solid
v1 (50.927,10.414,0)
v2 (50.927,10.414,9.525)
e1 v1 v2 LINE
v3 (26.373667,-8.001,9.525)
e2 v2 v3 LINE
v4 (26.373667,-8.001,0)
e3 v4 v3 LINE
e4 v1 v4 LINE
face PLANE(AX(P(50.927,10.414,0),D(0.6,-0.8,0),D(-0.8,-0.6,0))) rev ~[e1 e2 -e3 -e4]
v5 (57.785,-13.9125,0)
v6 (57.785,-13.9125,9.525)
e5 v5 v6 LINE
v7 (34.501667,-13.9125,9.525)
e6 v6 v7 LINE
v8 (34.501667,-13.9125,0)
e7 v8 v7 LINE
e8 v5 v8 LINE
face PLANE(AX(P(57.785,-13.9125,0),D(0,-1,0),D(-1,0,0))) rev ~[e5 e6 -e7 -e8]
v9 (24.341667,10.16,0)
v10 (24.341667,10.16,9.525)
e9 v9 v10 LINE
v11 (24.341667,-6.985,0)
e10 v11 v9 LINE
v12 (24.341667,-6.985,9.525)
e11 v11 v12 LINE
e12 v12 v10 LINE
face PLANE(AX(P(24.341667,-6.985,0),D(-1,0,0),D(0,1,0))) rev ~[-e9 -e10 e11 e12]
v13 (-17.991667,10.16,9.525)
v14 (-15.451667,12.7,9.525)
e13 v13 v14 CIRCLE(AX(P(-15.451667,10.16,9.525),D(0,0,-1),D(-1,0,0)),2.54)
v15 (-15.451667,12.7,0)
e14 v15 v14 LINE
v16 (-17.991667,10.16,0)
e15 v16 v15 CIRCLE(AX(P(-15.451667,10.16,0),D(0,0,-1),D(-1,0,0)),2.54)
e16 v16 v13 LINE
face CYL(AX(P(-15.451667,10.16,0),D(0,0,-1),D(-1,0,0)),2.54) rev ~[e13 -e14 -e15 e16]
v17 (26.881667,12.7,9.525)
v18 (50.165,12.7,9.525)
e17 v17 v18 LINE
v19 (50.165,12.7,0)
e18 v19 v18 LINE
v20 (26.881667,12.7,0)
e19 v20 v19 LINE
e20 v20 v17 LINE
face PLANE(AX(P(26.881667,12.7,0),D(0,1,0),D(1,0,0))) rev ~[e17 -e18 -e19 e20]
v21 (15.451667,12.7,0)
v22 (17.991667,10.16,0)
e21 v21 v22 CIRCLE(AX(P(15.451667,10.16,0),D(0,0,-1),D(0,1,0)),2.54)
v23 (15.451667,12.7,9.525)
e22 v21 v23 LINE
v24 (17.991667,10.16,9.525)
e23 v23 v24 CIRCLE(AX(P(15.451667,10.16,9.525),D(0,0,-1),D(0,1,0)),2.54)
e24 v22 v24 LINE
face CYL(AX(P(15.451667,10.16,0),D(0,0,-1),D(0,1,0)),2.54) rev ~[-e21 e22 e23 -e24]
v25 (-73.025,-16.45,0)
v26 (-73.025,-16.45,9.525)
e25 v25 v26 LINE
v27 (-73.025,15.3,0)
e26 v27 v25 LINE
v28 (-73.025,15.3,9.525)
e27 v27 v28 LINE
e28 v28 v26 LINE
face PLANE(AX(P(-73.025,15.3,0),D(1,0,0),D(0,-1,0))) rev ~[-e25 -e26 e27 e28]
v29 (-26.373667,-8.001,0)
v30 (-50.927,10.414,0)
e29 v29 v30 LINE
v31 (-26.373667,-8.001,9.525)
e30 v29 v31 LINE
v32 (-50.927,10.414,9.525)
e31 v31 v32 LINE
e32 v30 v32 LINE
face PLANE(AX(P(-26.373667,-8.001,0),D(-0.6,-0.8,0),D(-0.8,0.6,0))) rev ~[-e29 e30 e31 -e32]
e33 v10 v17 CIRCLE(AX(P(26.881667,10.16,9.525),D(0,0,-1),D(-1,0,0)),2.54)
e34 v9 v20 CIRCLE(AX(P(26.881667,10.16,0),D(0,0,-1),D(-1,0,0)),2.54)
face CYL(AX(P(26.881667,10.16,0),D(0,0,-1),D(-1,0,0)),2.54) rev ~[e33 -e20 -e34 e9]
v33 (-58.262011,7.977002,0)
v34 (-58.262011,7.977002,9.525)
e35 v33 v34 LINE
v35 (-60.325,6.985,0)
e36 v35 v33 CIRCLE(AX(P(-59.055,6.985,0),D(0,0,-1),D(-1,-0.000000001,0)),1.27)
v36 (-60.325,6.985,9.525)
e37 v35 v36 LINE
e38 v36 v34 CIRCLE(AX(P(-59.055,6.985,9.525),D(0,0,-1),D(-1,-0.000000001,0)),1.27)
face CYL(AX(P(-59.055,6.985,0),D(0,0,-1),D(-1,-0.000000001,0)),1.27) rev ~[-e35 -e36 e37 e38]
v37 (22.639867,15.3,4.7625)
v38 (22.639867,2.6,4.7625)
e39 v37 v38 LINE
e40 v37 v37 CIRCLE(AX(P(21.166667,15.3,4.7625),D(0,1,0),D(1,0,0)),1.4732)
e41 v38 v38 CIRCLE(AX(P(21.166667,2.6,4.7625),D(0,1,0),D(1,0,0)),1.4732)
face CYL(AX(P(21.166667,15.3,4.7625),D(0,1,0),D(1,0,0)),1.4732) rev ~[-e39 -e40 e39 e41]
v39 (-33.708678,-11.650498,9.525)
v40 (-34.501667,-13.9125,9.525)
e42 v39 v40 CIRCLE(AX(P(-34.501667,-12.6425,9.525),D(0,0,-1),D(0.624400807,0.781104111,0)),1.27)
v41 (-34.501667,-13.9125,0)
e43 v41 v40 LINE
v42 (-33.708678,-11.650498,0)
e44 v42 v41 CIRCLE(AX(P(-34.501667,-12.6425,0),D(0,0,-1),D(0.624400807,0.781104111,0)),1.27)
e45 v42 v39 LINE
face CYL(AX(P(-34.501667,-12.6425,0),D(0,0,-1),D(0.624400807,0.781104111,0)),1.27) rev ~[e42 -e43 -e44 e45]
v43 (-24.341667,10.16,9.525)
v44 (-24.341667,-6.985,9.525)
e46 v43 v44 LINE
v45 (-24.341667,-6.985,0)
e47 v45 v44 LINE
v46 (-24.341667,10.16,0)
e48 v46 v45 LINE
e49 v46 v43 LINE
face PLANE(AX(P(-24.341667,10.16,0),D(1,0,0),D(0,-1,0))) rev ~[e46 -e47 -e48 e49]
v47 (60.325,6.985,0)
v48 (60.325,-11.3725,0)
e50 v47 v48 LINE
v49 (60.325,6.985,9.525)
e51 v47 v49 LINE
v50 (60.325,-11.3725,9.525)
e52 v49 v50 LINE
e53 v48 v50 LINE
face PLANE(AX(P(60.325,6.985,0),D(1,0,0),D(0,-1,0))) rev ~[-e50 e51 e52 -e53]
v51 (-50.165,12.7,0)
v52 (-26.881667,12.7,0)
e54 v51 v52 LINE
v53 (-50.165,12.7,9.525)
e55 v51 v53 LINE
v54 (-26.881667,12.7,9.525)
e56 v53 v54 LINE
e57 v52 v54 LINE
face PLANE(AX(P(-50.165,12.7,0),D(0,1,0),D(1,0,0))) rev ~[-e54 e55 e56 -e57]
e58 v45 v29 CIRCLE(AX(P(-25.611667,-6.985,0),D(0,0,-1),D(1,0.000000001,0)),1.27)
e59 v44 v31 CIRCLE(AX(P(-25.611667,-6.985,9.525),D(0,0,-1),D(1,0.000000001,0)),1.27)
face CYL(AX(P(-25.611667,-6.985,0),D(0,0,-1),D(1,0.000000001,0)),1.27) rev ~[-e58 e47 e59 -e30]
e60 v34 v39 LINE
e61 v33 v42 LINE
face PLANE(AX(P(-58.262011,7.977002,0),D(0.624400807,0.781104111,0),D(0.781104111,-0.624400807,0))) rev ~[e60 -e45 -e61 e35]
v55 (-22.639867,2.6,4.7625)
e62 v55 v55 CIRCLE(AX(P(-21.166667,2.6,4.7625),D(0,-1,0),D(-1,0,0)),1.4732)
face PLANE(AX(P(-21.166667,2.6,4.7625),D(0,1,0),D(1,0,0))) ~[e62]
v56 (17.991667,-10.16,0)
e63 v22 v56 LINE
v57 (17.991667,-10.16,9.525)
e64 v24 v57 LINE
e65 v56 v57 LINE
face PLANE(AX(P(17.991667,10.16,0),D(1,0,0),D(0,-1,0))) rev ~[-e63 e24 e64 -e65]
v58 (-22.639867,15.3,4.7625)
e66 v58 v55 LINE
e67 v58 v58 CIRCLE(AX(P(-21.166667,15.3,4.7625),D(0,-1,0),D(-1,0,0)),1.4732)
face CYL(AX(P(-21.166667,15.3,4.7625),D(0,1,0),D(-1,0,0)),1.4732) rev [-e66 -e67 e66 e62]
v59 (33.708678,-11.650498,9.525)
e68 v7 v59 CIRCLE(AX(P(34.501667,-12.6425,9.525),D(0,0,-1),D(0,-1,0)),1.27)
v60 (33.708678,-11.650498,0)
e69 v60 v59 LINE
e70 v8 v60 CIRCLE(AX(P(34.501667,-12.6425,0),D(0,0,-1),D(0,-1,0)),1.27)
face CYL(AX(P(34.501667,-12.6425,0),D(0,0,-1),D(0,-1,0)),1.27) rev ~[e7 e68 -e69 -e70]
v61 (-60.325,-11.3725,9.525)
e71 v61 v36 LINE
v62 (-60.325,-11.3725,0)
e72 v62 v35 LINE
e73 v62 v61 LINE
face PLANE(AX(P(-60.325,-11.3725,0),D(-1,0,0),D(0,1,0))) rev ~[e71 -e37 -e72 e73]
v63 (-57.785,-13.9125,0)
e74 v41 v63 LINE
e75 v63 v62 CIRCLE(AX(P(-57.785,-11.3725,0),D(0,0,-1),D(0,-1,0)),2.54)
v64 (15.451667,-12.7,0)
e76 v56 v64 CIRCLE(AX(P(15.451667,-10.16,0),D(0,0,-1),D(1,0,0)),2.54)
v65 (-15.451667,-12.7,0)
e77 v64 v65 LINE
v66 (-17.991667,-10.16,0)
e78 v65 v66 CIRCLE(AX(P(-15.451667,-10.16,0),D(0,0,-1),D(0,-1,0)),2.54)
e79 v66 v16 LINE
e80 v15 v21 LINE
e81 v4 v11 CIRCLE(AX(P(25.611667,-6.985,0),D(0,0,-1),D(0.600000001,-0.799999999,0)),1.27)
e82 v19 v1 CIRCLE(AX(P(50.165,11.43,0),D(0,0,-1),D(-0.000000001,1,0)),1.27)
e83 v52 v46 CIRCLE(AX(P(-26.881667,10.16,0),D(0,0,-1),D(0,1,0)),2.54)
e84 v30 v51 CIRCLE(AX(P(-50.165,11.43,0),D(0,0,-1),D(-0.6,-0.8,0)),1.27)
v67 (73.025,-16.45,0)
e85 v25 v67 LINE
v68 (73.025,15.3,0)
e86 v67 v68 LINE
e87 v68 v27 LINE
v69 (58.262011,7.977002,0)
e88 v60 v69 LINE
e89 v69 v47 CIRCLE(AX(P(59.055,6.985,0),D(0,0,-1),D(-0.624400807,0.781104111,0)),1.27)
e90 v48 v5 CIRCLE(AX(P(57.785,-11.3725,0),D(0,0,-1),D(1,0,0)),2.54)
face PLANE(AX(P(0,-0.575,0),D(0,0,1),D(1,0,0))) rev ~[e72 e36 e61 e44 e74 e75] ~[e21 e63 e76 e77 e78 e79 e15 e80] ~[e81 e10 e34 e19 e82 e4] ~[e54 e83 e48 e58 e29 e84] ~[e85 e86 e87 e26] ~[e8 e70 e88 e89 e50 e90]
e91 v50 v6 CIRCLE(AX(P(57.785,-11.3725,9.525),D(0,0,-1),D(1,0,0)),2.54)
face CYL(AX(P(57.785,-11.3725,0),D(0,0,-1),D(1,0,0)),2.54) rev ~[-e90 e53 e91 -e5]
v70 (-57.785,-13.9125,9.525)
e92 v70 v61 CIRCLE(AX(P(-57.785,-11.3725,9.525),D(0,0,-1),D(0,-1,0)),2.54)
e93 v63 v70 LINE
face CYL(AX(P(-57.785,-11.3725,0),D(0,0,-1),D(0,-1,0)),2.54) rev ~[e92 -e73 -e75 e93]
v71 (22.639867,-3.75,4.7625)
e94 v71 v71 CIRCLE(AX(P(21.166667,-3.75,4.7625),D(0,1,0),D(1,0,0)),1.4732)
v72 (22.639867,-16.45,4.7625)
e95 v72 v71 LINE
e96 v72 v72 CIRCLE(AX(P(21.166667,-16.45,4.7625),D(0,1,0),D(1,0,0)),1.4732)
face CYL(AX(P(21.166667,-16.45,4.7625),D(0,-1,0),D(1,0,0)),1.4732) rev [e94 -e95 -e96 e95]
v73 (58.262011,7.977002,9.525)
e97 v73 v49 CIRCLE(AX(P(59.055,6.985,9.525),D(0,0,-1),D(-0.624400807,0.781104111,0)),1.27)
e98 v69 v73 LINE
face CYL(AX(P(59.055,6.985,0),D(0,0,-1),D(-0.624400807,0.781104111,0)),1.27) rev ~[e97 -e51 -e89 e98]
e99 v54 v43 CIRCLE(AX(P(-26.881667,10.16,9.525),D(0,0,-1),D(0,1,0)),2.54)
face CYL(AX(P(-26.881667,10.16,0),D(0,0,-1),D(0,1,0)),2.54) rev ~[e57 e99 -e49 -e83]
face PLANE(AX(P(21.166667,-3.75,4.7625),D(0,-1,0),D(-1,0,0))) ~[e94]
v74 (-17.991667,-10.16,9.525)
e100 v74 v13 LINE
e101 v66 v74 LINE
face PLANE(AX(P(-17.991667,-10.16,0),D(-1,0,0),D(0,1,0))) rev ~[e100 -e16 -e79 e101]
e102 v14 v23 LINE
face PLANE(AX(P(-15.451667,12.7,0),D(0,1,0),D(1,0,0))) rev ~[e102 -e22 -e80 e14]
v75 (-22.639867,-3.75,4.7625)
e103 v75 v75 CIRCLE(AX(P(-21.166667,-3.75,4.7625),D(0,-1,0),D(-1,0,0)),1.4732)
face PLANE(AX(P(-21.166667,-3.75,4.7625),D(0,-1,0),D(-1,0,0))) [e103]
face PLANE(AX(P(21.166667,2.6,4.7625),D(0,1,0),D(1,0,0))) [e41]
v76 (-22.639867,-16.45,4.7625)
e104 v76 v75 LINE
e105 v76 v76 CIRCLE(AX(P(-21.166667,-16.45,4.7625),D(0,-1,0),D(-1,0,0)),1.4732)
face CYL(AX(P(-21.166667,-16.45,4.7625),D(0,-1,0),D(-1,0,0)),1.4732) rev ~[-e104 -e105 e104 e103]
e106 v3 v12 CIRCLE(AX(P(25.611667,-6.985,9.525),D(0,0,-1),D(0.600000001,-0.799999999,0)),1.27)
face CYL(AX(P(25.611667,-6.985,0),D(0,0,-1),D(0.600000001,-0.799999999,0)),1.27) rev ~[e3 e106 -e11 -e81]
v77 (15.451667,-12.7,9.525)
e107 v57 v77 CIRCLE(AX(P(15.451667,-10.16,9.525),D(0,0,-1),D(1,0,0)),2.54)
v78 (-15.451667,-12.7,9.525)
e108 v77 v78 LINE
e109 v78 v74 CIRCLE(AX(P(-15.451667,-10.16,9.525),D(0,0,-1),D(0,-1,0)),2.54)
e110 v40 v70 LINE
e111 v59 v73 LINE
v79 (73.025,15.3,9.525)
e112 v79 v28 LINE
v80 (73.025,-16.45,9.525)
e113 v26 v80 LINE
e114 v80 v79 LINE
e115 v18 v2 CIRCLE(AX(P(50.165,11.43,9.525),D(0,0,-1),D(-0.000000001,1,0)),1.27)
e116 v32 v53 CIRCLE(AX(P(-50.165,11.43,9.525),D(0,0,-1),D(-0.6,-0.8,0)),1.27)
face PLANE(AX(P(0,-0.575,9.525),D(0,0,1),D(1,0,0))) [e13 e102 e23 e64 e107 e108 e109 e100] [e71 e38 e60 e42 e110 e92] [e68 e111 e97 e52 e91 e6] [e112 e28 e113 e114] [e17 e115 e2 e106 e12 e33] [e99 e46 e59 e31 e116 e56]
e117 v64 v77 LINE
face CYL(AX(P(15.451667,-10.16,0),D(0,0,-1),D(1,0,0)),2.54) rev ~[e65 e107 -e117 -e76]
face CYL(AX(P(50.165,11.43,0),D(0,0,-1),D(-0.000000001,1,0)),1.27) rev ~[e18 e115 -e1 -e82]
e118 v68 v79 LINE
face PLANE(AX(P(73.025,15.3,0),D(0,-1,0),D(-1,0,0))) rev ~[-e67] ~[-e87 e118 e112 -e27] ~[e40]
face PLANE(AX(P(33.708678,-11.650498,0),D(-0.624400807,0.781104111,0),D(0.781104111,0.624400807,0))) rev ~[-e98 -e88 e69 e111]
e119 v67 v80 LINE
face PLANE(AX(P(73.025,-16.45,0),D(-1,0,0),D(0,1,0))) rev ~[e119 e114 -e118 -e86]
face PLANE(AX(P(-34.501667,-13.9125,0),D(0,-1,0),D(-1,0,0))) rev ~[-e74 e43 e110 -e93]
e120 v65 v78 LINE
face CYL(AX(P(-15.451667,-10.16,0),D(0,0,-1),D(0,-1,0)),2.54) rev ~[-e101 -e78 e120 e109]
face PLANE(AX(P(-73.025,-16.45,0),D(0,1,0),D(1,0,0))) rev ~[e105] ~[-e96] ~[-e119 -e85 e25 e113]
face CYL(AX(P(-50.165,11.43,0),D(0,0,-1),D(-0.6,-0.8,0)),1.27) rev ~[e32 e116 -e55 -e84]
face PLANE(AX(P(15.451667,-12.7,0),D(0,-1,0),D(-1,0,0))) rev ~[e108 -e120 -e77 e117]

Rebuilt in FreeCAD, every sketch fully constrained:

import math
import FreeCAD as App
import Part
import Sketcher

V = App.Vector
Q = App.Units.Quantity

doc = App.newDocument("Part")
params = doc.addObject("Spreadsheet::Sheet", "Params")
for row, (alias, value) in enumerate([
    ("sketch1_radius", "0.1 in"),
    ("sketch1_radius2", "0.05 in"),
    ("sketch1_height", "0.8 in"),
    ("sketch1_width", "5.75 in"),
    ("sketch1_height2", "1.25 in"),
    ("pad1_length", "0.375 in"),
    ("sketch2_diameter", "0.116 in"),
    ("pocket1_length", "0.5 in"),
    ("sketch3_diameter", "0.116 in"),
    ("pocket2_length", "0.5 in"),
], start=1):
    params.set(f"A{row}", alias)
    params.set(f"B{row}", "=" + value)
    params.setAlias(f"B{row}", alias)

body = doc.addObject("PartDesign::Body", "Body")

# Sketch on XY plane
sketch1 = body.newObject("Sketcher::SketchObject", "Sketch")
sketch1.AttachmentSupport = (doc.getObject("XY_Plane"), [""])
sketch1.MapMode = "FlatFace"
sketch1.addGeometry([
    Part.LineSegment(V(-73, 15.3, 0), V(-73, -16.5, 0)),  # 0
    Part.LineSegment(V(-73, -16.5, 0), V(73, -16.5, 0)),  # 1
    Part.LineSegment(V(73, -16.5, 0), V(73, 15.3, 0)),  # 2
    Part.LineSegment(V(73, 15.3, 0), V(-73, 15.3, 0)),  # 3
    Part.LineSegment(V(-34.5, -13.9, 0), V(-57.8, -13.9, 0)),  # 4
    Part.ArcOfCircle(Part.Circle(V(-57.8, -11.4, 0), V(0, 0, 1), 2.5), math.radians(-180), math.radians(-90)),  # 5
    Part.LineSegment(V(-60.3, -11.4, 0), V(-60.3, 7, 0)),  # 6
    Part.ArcOfCircle(Part.Circle(V(-59.1, 7, 0), V(0, 0, 1), 1.3), math.radians(51), math.radians(180)),  # 7
    Part.LineSegment(V(-58.3, 8, 0), V(-33.7, -11.7, 0)),  # 8
    Part.ArcOfCircle(Part.Circle(V(-34.5, -12.6, 0), V(0, 0, 1), 1.3), math.radians(-90), math.radians(51)),  # 9
    Part.LineSegment(V(60.3, 7, 0), V(60.3, -11.4, 0)),  # 10
    Part.ArcOfCircle(Part.Circle(V(57.8, -11.4, 0), V(0, 0, 1), 2.5), math.radians(-90), math.radians(0)),  # 11
    Part.LineSegment(V(57.8, -13.9, 0), V(34.5, -13.9, 0)),  # 12
    Part.ArcOfCircle(Part.Circle(V(34.5, -12.6, 0), V(0, 0, 1), 1.3), math.radians(129), math.radians(270)),  # 13
    Part.LineSegment(V(33.7, -11.7, 0), V(58.3, 8, 0)),  # 14
    Part.ArcOfCircle(Part.Circle(V(59.1, 7, 0), V(0, 0, 1), 1.3), math.radians(0), math.radians(129)),  # 15
    Part.ArcOfCircle(Part.Circle(V(-25.6, -7, 0), V(0, 0, 1), 1.3), math.radians(-127), math.radians(0)),  # 16
    Part.LineSegment(V(-26.4, -8, 0), V(-50.9, 10.4, 0)),  # 17
    Part.ArcOfCircle(Part.Circle(V(-50.2, 11.4, 0), V(0, 0, 1), 1.3), math.radians(90), math.radians(233)),  # 18
    Part.LineSegment(V(-50.2, 12.7, 0), V(-26.9, 12.7, 0)),  # 19
    Part.ArcOfCircle(Part.Circle(V(-26.9, 10.2, 0), V(0, 0, 1), 2.5), math.radians(0), math.radians(90)),  # 20
    Part.LineSegment(V(-24.3, 10.2, 0), V(-24.3, -7, 0)),  # 21
    Part.LineSegment(V(-18, -10.2, 0), V(-18, 10.2, 0)),  # 22
    Part.ArcOfCircle(Part.Circle(V(-15.5, 10.2, 0), V(0, 0, 1), 2.5), math.radians(90), math.radians(180)),  # 23
    Part.LineSegment(V(-15.5, 12.7, 0), V(15.5, 12.7, 0)),  # 24
    Part.ArcOfCircle(Part.Circle(V(15.5, 10.2, 0), V(0, 0, 1), 2.5), math.radians(0), math.radians(90)),  # 25
    Part.LineSegment(V(18, 10.2, 0), V(18, -10.2, 0)),  # 26
    Part.ArcOfCircle(Part.Circle(V(15.5, -10.2, 0), V(0, 0, 1), 2.5), math.radians(-90), math.radians(0)),  # 27
    Part.LineSegment(V(15.5, -12.7, 0), V(-15.5, -12.7, 0)),  # 28
    Part.ArcOfCircle(Part.Circle(V(-15.5, -10.2, 0), V(0, 0, 1), 2.5), math.radians(-180), math.radians(-90)),  # 29
    Part.ArcOfCircle(Part.Circle(V(25.6, -7, 0), V(0, 0, 1), 1.3), math.radians(180), math.radians(307)),  # 30
    Part.LineSegment(V(24.3, -7, 0), V(24.3, 10.2, 0)),  # 31
    Part.ArcOfCircle(Part.Circle(V(26.9, 10.2, 0), V(0, 0, 1), 2.5), math.radians(90), math.radians(180)),  # 32
    Part.LineSegment(V(26.9, 12.7, 0), V(50.2, 12.7, 0)),  # 33
    Part.ArcOfCircle(Part.Circle(V(50.2, 11.4, 0), V(0, 0, 1), 1.3), math.radians(-53), math.radians(90)),  # 34
    Part.LineSegment(V(50.9, 10.4, 0), V(26.4, -8, 0)),  # 35
], False)
sketch1.addConstraint([
    Sketcher.Constraint("Coincident", 0, 2, 1, 1),
    Sketcher.Constraint("Coincident", 1, 2, 2, 1),
    Sketcher.Constraint("Coincident", 2, 2, 3, 1),
    Sketcher.Constraint("Coincident", 3, 2, 0, 1),
    Sketcher.Constraint("Tangent", 4, 2, 5, 2),
    Sketcher.Constraint("Tangent", 5, 1, 6, 1),
    Sketcher.Constraint("Tangent", 6, 2, 7, 2),
    Sketcher.Constraint("Tangent", 7, 1, 8, 1),
    Sketcher.Constraint("Tangent", 8, 2, 9, 2),
    Sketcher.Constraint("Tangent", 9, 1, 4, 1),
    Sketcher.Constraint("Tangent", 10, 2, 11, 2),
    Sketcher.Constraint("Tangent", 11, 1, 12, 1),
    Sketcher.Constraint("Tangent", 12, 2, 13, 2),
    Sketcher.Constraint("Tangent", 13, 1, 14, 1),
    Sketcher.Constraint("Tangent", 14, 2, 15, 2),
    Sketcher.Constraint("Tangent", 15, 1, 10, 1),
    Sketcher.Constraint("Tangent", 16, 1, 17, 1),
    Sketcher.Constraint("Tangent", 17, 2, 18, 2),
    Sketcher.Constraint("Tangent", 18, 1, 19, 1),
    Sketcher.Constraint("Tangent", 19, 2, 20, 2),
    Sketcher.Constraint("Tangent", 20, 1, 21, 1),
    Sketcher.Constraint("Tangent", 21, 2, 16, 2),
    Sketcher.Constraint("Tangent", 22, 2, 23, 2),
    Sketcher.Constraint("Tangent", 23, 1, 24, 1),
    Sketcher.Constraint("Tangent", 24, 2, 25, 2),
    Sketcher.Constraint("Tangent", 25, 1, 26, 1),
    Sketcher.Constraint("Tangent", 26, 2, 27, 2),
    Sketcher.Constraint("Tangent", 27, 1, 28, 1),
    Sketcher.Constraint("Tangent", 28, 2, 29, 2),
    Sketcher.Constraint("Tangent", 29, 1, 22, 1),
    Sketcher.Constraint("Tangent", 30, 1, 31, 1),
    Sketcher.Constraint("Tangent", 31, 2, 32, 2),
    Sketcher.Constraint("Tangent", 32, 1, 33, 1),
    Sketcher.Constraint("Tangent", 33, 2, 34, 2),
    Sketcher.Constraint("Tangent", 34, 1, 35, 1),
    Sketcher.Constraint("Tangent", 35, 2, 30, 2),
    Sketcher.Constraint("Vertical", 0),
    Sketcher.Constraint("Horizontal", 1),
    Sketcher.Constraint("Vertical", 2),
    Sketcher.Constraint("Horizontal", 3),
    Sketcher.Constraint("Horizontal", 4),
    Sketcher.Constraint("Vertical", 6),
    Sketcher.Constraint("Vertical", 10),
    Sketcher.Constraint("Horizontal", 12),
    Sketcher.Constraint("Horizontal", 19),
    Sketcher.Constraint("Vertical", 21),
    Sketcher.Constraint("Vertical", 22),
    Sketcher.Constraint("Horizontal", 24),
    Sketcher.Constraint("Vertical", 26),
    Sketcher.Constraint("Horizontal", 28),
    Sketcher.Constraint("Vertical", 31),
    Sketcher.Constraint("Horizontal", 33),
    Sketcher.Constraint("Equal", 7, 9),
    Sketcher.Constraint("Equal", 5, 11),
    Sketcher.Constraint("Equal", 9, 13),
    Sketcher.Constraint("Equal", 13, 15),
    Sketcher.Constraint("Equal", 15, 16),
    Sketcher.Constraint("Equal", 16, 18),
    Sketcher.Constraint("Equal", 11, 20),
    Sketcher.Constraint("Equal", 20, 23),
    Sketcher.Constraint("Equal", 23, 25),
    Sketcher.Constraint("Equal", 25, 27),
    Sketcher.Constraint("Equal", 27, 29),
    Sketcher.Constraint("Equal", 18, 30),
    Sketcher.Constraint("Equal", 29, 32),
    Sketcher.Constraint("Equal", 30, 34),
    Sketcher.Constraint("Symmetric", 23, 3, 27, 3, -1, 1),
    Sketcher.Constraint("Symmetric", 5, 3, 11, 3, -2),
    Sketcher.Constraint("Symmetric", 16, 3, 30, 3, -2),
    Sketcher.Constraint("Symmetric", 18, 3, 34, 3, -2),
    Sketcher.Constraint("Symmetric", 8, 2, 13, 1, -2),
    Sketcher.Constraint("Horizontal", 20, 3, 23, 3),
    Sketcher.Constraint("Equal", 12, 19),
    Sketcher.Constraint("Radius", 5, Q("0.1 in")),
    Sketcher.Constraint("Radius", 7, Q("0.05 in")),
    Sketcher.Constraint("DistanceY", 22, 1, 22, 2, Q("0.8 in")),
    Sketcher.Constraint("DistanceX", 1, 1, 1, 2, Q("5.75 in")),
    Sketcher.Constraint("DistanceY", 0, 2, 0, 1, Q("1.25 in")),
    Sketcher.Constraint("DistanceX", 7, 3, 11, 3, Q("4.6 in")),
    Sketcher.Constraint("DistanceX", 5, 3, 18, 3, Q("0.3 in")),
    Sketcher.Constraint("DistanceX", 16, 3, 23, 3, Q("0.4 in")),
    Sketcher.Constraint("DistanceX", 0, 2, 5, 3, Q("0.6 in")),
    Sketcher.Constraint("DistanceY", 21, 2, 21, 1, Q("0.675 in")),
    Sketcher.Constraint("DistanceY", -1, 1, 17, 2, Q("0.41 in")),
    Sketcher.Constraint("DistanceY", 16, 3, 7, 3, Q("0.55 in")),
    Sketcher.Constraint("DistanceY", 6, 1, 6, 2, Q("18.3575 mm")),
    Sketcher.Constraint("DistanceY", 0, 2, -1, 1, Q("16.45 mm")),
])
sketch1.setExpression("Constraints[73]", "Params.sketch1_radius")
sketch1.setExpression("Constraints[74]", "Params.sketch1_radius2")
sketch1.setExpression("Constraints[75]", "Params.sketch1_height")
sketch1.setExpression("Constraints[76]", "Params.sketch1_width")
sketch1.setExpression("Constraints[77]", "Params.sketch1_height2")
pad1 = body.newObject("PartDesign::Pad", "Pad")
pad1.Profile = sketch1
pad1.setExpression("Length", "Params.pad1_length")

# Sketch on XZ plane
sketch2 = body.newObject("Sketcher::SketchObject", "Sketch001")
sketch2.AttachmentSupport = (doc.getObject("XZ_Plane"), [""])
sketch2.MapMode = "FlatFace"
sketch2.AttachmentOffset = App.Placement(V(0, 0, -15.3), App.Rotation())
sketch2.addGeometry(Part.Circle(V(21.2, 4.8, 0), V(0, 0, 1), 1.5), False)
sketch2.addConstraint([
    Sketcher.Constraint("Diameter", 0, Q("0.116 in")),
    Sketcher.Constraint("DistanceY", -1, 1, 0, 3, Q("0.1875 in")),
    Sketcher.Constraint("DistanceX", -1, 1, 0, 3, Q("21.166667 mm")),
])
sketch2.setExpression("Constraints[0]", "Params.sketch2_diameter")
pocket1 = body.newObject("PartDesign::Pocket", "Pocket")
pocket1.Profile = sketch2
pocket1.setExpression("Length", "Params.pocket1_length")
pocket1.Reversed = True
doc.recompute()

datumplane = body.newObject("PartDesign::Plane", "DatumPlane")
datumplane.AttachmentSupport = (doc.getObject("XZ_Plane"), [""])
datumplane.MapMode = "FlatFace"
datumplane.AttachmentOffset = App.Placement(V(0, 0, 0.575), App.Rotation())
mirrored = body.newObject("PartDesign::Mirrored", "Mirrored")
mirrored.Originals = [pocket1]
mirrored.MirrorPlane = (datumplane, [""])
body.Tip = mirrored
doc.recompute()

mirrored2 = body.newObject("PartDesign::Mirrored", "Mirrored001")
mirrored2.Originals = [pocket1]
mirrored2.MirrorPlane = (doc.getObject("YZ_Plane"), [""])
body.Tip = mirrored2

# Sketch on XZ plane
sketch3 = body.newObject("Sketcher::SketchObject", "Sketch002")
sketch3.AttachmentSupport = (doc.getObject("XZ_Plane"), [""])
sketch3.MapMode = "FlatFace"
sketch3.AttachmentOffset = App.Placement(V(0, 0, 16.45), App.Rotation())
sketch3.addGeometry(Part.Circle(V(-21.2, 4.8, 0), V(0, 0, 1), 1.5), False)
sketch3.addConstraint([
    Sketcher.Constraint("Diameter", 0, Q("0.116 in")),
    Sketcher.Constraint("DistanceY", -1, 1, 0, 3, Q("0.1875 in")),
    Sketcher.Constraint("DistanceX", 0, 3, -1, 1, Q("21.166667 mm")),
])
sketch3.setExpression("Constraints[0]", "Params.sketch3_diameter")
pocket2 = body.newObject("PartDesign::Pocket", "Pocket001")
pocket2.Profile = sketch3
pocket2.setExpression("Length", "Params.pocket2_length")

doc.recompute()
